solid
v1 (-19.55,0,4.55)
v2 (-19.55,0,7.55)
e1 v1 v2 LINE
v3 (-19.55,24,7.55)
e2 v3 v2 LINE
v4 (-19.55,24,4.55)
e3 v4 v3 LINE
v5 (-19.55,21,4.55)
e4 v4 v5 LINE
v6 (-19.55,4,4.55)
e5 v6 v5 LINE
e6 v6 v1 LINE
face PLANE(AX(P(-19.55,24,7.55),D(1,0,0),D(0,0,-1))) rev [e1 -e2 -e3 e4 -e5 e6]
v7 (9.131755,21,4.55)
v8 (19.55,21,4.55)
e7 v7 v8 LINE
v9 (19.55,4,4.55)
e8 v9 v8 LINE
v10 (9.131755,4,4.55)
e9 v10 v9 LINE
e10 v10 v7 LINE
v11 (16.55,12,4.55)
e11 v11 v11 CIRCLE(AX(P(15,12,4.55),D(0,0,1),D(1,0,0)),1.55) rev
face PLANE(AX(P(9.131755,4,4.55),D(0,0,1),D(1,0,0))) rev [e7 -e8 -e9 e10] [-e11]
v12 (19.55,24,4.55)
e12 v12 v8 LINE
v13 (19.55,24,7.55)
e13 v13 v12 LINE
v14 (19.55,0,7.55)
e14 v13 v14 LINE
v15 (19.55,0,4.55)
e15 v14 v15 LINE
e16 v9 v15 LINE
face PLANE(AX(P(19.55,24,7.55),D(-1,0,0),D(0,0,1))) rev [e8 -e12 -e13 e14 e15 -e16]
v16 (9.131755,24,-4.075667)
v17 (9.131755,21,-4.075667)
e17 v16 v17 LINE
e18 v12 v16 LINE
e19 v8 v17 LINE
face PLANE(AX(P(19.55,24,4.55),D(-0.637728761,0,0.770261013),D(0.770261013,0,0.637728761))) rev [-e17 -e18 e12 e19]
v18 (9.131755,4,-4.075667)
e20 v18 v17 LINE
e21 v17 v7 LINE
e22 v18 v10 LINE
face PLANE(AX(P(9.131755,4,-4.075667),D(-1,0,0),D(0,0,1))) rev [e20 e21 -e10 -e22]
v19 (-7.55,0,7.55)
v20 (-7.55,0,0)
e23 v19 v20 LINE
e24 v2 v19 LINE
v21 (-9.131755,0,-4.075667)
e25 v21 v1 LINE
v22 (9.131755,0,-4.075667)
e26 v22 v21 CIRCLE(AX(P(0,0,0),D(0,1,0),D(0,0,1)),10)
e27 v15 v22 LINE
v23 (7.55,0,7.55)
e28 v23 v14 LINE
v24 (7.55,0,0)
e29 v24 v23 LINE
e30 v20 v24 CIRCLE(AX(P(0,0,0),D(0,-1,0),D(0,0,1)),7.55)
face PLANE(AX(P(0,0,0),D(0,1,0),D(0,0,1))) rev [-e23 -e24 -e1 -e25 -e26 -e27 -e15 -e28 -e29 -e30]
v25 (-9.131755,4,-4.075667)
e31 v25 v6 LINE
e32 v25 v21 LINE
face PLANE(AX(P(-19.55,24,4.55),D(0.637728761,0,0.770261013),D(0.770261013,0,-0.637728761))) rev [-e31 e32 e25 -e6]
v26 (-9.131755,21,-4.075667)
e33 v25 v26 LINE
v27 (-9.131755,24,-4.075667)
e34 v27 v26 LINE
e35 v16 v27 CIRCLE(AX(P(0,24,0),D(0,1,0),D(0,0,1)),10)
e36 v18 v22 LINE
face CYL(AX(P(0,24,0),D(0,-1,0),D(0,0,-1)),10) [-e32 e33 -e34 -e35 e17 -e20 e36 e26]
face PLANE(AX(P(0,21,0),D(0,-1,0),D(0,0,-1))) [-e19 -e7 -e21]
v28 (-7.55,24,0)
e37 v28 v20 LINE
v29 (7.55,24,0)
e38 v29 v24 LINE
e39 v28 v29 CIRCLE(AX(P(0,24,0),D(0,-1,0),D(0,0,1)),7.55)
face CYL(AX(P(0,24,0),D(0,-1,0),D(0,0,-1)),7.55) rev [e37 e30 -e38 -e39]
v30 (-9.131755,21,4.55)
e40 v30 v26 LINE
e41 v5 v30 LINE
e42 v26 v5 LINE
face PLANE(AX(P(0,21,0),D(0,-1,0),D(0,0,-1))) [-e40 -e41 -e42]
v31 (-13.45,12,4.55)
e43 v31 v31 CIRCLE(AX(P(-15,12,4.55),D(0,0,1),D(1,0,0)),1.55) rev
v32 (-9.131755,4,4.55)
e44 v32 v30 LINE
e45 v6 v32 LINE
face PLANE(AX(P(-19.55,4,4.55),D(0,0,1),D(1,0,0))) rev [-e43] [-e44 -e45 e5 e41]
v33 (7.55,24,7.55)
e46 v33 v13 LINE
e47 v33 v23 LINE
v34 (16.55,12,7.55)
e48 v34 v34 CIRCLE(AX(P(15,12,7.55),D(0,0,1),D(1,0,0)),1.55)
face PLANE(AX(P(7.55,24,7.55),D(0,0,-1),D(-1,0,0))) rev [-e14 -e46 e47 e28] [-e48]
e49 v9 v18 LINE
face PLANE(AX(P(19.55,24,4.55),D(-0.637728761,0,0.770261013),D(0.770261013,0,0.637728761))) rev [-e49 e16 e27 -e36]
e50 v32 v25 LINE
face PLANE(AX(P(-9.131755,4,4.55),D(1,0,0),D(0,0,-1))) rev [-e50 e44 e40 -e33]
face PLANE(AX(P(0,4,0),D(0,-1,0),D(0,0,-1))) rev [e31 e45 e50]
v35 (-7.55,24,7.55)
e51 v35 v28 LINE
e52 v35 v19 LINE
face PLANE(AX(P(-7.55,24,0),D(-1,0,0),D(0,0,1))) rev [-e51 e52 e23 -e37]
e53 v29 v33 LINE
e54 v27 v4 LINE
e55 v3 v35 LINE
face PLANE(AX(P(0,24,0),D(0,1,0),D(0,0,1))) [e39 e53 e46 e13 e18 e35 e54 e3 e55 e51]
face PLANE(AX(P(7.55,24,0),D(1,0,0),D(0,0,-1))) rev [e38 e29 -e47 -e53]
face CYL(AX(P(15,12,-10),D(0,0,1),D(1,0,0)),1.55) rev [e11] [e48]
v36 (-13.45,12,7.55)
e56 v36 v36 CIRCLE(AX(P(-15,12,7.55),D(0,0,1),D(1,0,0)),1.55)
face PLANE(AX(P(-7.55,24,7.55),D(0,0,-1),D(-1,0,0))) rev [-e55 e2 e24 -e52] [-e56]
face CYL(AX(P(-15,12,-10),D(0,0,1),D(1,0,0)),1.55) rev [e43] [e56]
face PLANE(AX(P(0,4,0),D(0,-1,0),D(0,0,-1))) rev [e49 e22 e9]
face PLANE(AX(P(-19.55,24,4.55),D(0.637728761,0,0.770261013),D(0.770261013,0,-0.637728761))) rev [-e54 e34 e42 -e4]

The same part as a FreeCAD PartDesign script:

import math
import FreeCAD as App
import Part
import Sketcher

V = App.Vector
Q = App.Units.Quantity


def add_polygon(sketch, points):
    """Adds a closed chain of lines whose ends are joined by coincident constraints."""
    first, n = sketch.GeometryCount, len(points)
    for a, b in zip(points, points[1:] + points[:1]):
        sketch.addGeometry(Part.LineSegment(App.Vector(*a, 0), App.Vector(*b, 0)), False)
    for i in range(n):
        sketch.addConstraint(Sketcher.Constraint("Coincident", first + i, 2, first + (i + 1) % n, 1))

doc = App.newDocument("Part")
body = doc.addObject("PartDesign::Body", "Body")

# Sketch on XZ plane
sketch1 = doc.addObject("Sketcher::SketchObject", "Sketch")
body.addObject(sketch1)
sketch1.AttachmentSupport = (doc.XZ_Plane, [""])
sketch1.MapMode = "FlatFace"
sketch1.addGeometry(Part.LineSegment(V(-7.5, 7.5, 0), V(-7.5, 0, 0)), False)
sketch1.addGeometry(Part.ArcOfCircle(Part.Circle(V(0, 0, 0), V(0, 0, 1), 7.5), math.radians(180), math.radians(360)), False)
sketch1.addGeometry(Part.LineSegment(V(7.5, 0, 0), V(7.5, 7.5, 0)), False)
sketch1.addGeometry(Part.LineSegment(V(7.5, 7.5, 0), V(19.6, 7.5, 0)), False)
sketch1.addGeometry(Part.LineSegment(V(19.6, 7.5, 0), V(19.6, 4.5, 0)), False)
sketch1.addGeometry(Part.LineSegment(V(19.6, 4.5, 0), V(9.1, -4.1, 0)), False)
sketch1.addGeometry(Part.ArcOfCircle(Part.Circle(V(0, 0, 0), V(0, 0, 1), 10), math.radians(-156), math.radians(-24)), False)
sketch1.addGeometry(Part.LineSegment(V(-9.1, -4.1, 0), V(-19.6, 4.5, 0)), False)
sketch1.addGeometry(Part.LineSegment(V(-19.6, 4.5, 0), V(-19.6, 7.5, 0)), False)
sketch1.addGeometry(Part.LineSegment(V(-19.6, 7.5, 0), V(-7.5, 7.5, 0)), False)
sketch1.addConstraint(Sketcher.Constraint("Tangent", 0, 2, 1, 1))
sketch1.addConstraint(Sketcher.Constraint("Tangent", 1, 2, 2, 1))
sketch1.addConstraint(Sketcher.Constraint("Coincident", 2, 2, 3, 1))
sketch1.addConstraint(Sketcher.Constraint("Coincident", 3, 2, 4, 1))
sketch1.addConstraint(Sketcher.Constraint("Coincident", 4, 2, 5, 1))
sketch1.addConstraint(Sketcher.Constraint("Coincident", 5, 2, 6, 2))
sketch1.addConstraint(Sketcher.Constraint("Coincident", 6, 1, 7, 1))
sketch1.addConstraint(Sketcher.Constraint("Coincident", 7, 2, 8, 1))
sketch1.addConstraint(Sketcher.Constraint("Coincident", 8, 2, 9, 1))
sketch1.addConstraint(Sketcher.Constraint("Coincident", 9, 2, 0, 1))
sketch1.addConstraint(Sketcher.Constraint("Vertical", 0))
sketch1.addConstraint(Sketcher.Constraint("Vertical", 2))
sketch1.addConstraint(Sketcher.Constraint("Horizontal", 3))
sketch1.addConstraint(Sketcher.Constraint("Vertical", 4))
sketch1.addConstraint(Sketcher.Constraint("Vertical", 8))
sketch1.addConstraint(Sketcher.Constraint("Horizontal", 9))
sketch1.addConstraint(Sketcher.Constraint("Coincident", 1, 3, -1, 1))
sketch1.addConstraint(Sketcher.Constraint("Coincident", 6, 3, -1, 1))
sketch1.addConstraint(Sketcher.Constraint("Symmetric", 4, 2, 7, 2, -2))
sketch1.addConstraint(Sketcher.Constraint("Horizontal", 5, 2, 6, 1))
sketch1.addConstraint(Sketcher.Constraint("Horizontal", 3, 2, 8, 2))
sketch1.addConstraint(Sketcher.Constraint("Radius", 6, Q("10 mm")))
sketch1.addConstraint(Sketcher.Constraint("DistanceX", 3, 1, 3, 2, Q("12 mm")))
sketch1.addConstraint(Sketcher.Constraint("DistanceY", 4, 2, 4, 1, Q("3 mm")))
sketch1.addConstraint(Sketcher.Constraint("Radius", 1, Q("7.55 mm")))
sketch1.addConstraint(Sketcher.Constraint("DistanceY", 0, 2, 0, 1, Q("7.55 mm")))
sketch1.addConstraint(Sketcher.Constraint("DistanceX", 6, 1, 5, 2, Q("18.263509 mm")))
pad1 = doc.addObject("PartDesign::Pad", "Pad")
body.addObject(pad1)
pad1.Profile = sketch1
pad1.Length = 24
pad1.Reversed = True

# Sketch on XY plane
sketch2 = doc.addObject("Sketcher::SketchObject", "Sketch001")
body.addObject(sketch2)
sketch2.AttachmentSupport = (doc.XY_Plane, [""])
sketch2.MapMode = "FlatFace"
sketch2.AttachmentOffset = App.Placement(V(0, 0, 7.55), App.Rotation())
sketch2.addGeometry(Part.Circle(V(15, 12, 0), V(0, 0, 1), 1.6), False)
sketch2.addGeometry(Part.Circle(V(-15, 12, 0), V(0, 0, 1), 1.6), False)
sketch2.addConstraint(Sketcher.Constraint("Equal", 0, 1))
sketch2.addConstraint(Sketcher.Constraint("Symmetric", 0, 3, 1, 3, -2))
sketch2.addConstraint(Sketcher.Constraint("Diameter", 0, Q("3.1 mm")))
sketch2.addConstraint(Sketcher.Constraint("DistanceX", -1, 1, 0, 3, Q("15 mm")))
sketch2.addConstraint(Sketcher.Constraint("DistanceY", -1, 1, 0, 3, Q("12 mm")))
pocket1 = doc.addObject("PartDesign::Pocket", "Pocket")
body.addObject(pocket1)
pocket1.Profile = sketch2
pocket1.Type = "ThroughAll"

# Sketch on XZ plane
sketch3 = doc.addObject("Sketcher::SketchObject", "Sketch002")
body.addObject(sketch3)
sketch3.AttachmentSupport = (doc.XZ_Plane, [""])
sketch3.MapMode = "FlatFace"
sketch3.AttachmentOffset = App.Placement(V(0, 0, -21), App.Rotation())
add_polygon(sketch3, [(-9, -4), (-20, 5), (-9, 5)])  # lines 0-2
sketch3.addConstraint(Sketcher.Constraint("Horizontal", 1))
sketch3.addConstraint(Sketcher.Constraint("Vertical", 2))
sketch3.addConstraint(Sketcher.Constraint("DistanceX", 0, 2, -1, 1, Q("19.55 mm")))
sketch3.addConstraint(Sketcher.Constraint("DistanceY", -1, 1, 0, 2, Q("4.55 mm")))
sketch3.addConstraint(Sketcher.Constraint("DistanceX", 1, 1, 1, 2, Q("10.418245 mm")))
sketch3.addConstraint(Sketcher.Constraint("DistanceY", 2, 2, 2, 1, Q("8.625667 mm")))
pocket2 = doc.addObject("PartDesign::Pocket", "Pocket001")
body.addObject(pocket2)
pocket2.Profile = sketch3
pocket2.Length = 17
pocket2.Reversed = True

# Sketch on XZ plane
sketch4 = doc.addObject("Sketcher::SketchObject", "Sketch003")
body.addObject(sketch4)
sketch4.AttachmentSupport = (doc.XZ_Plane, [""])
sketch4.MapMode = "FlatFace"
sketch4.AttachmentOffset = App.Placement(V(0, 0, -21), App.Rotation())
add_polygon(sketch4, [(20, 5), (9, -4), (9, 5)])  # lines 0-2
sketch4.addConstraint(Sketcher.Constraint("Vertical", 1))
sketch4.addConstraint(Sketcher.Constraint("Horizontal", 2))
sketch4.addConstraint(Sketcher.Constraint("DistanceY", -1, 1, 1, 2, Q("4.55 mm")))
sketch4.addConstraint(Sketcher.Constraint("DistanceX", -1, 1, 2, 2, Q("19.55 mm")))
sketch4.addConstraint(Sketcher.Constraint("DistanceX", 2, 1, 2, 2, Q("10.418245 mm")))
sketch4.addConstraint(Sketcher.Constraint("DistanceY", 1, 1, 1, 2, Q("8.625667 mm")))
pocket3 = doc.addObject("PartDesign::Pocket", "Pocket002")
body.addObject(pocket3)
pocket3.Profile = sketch4
pocket3.Length = 17
pocket3.Reversed = True

doc.recompute()
